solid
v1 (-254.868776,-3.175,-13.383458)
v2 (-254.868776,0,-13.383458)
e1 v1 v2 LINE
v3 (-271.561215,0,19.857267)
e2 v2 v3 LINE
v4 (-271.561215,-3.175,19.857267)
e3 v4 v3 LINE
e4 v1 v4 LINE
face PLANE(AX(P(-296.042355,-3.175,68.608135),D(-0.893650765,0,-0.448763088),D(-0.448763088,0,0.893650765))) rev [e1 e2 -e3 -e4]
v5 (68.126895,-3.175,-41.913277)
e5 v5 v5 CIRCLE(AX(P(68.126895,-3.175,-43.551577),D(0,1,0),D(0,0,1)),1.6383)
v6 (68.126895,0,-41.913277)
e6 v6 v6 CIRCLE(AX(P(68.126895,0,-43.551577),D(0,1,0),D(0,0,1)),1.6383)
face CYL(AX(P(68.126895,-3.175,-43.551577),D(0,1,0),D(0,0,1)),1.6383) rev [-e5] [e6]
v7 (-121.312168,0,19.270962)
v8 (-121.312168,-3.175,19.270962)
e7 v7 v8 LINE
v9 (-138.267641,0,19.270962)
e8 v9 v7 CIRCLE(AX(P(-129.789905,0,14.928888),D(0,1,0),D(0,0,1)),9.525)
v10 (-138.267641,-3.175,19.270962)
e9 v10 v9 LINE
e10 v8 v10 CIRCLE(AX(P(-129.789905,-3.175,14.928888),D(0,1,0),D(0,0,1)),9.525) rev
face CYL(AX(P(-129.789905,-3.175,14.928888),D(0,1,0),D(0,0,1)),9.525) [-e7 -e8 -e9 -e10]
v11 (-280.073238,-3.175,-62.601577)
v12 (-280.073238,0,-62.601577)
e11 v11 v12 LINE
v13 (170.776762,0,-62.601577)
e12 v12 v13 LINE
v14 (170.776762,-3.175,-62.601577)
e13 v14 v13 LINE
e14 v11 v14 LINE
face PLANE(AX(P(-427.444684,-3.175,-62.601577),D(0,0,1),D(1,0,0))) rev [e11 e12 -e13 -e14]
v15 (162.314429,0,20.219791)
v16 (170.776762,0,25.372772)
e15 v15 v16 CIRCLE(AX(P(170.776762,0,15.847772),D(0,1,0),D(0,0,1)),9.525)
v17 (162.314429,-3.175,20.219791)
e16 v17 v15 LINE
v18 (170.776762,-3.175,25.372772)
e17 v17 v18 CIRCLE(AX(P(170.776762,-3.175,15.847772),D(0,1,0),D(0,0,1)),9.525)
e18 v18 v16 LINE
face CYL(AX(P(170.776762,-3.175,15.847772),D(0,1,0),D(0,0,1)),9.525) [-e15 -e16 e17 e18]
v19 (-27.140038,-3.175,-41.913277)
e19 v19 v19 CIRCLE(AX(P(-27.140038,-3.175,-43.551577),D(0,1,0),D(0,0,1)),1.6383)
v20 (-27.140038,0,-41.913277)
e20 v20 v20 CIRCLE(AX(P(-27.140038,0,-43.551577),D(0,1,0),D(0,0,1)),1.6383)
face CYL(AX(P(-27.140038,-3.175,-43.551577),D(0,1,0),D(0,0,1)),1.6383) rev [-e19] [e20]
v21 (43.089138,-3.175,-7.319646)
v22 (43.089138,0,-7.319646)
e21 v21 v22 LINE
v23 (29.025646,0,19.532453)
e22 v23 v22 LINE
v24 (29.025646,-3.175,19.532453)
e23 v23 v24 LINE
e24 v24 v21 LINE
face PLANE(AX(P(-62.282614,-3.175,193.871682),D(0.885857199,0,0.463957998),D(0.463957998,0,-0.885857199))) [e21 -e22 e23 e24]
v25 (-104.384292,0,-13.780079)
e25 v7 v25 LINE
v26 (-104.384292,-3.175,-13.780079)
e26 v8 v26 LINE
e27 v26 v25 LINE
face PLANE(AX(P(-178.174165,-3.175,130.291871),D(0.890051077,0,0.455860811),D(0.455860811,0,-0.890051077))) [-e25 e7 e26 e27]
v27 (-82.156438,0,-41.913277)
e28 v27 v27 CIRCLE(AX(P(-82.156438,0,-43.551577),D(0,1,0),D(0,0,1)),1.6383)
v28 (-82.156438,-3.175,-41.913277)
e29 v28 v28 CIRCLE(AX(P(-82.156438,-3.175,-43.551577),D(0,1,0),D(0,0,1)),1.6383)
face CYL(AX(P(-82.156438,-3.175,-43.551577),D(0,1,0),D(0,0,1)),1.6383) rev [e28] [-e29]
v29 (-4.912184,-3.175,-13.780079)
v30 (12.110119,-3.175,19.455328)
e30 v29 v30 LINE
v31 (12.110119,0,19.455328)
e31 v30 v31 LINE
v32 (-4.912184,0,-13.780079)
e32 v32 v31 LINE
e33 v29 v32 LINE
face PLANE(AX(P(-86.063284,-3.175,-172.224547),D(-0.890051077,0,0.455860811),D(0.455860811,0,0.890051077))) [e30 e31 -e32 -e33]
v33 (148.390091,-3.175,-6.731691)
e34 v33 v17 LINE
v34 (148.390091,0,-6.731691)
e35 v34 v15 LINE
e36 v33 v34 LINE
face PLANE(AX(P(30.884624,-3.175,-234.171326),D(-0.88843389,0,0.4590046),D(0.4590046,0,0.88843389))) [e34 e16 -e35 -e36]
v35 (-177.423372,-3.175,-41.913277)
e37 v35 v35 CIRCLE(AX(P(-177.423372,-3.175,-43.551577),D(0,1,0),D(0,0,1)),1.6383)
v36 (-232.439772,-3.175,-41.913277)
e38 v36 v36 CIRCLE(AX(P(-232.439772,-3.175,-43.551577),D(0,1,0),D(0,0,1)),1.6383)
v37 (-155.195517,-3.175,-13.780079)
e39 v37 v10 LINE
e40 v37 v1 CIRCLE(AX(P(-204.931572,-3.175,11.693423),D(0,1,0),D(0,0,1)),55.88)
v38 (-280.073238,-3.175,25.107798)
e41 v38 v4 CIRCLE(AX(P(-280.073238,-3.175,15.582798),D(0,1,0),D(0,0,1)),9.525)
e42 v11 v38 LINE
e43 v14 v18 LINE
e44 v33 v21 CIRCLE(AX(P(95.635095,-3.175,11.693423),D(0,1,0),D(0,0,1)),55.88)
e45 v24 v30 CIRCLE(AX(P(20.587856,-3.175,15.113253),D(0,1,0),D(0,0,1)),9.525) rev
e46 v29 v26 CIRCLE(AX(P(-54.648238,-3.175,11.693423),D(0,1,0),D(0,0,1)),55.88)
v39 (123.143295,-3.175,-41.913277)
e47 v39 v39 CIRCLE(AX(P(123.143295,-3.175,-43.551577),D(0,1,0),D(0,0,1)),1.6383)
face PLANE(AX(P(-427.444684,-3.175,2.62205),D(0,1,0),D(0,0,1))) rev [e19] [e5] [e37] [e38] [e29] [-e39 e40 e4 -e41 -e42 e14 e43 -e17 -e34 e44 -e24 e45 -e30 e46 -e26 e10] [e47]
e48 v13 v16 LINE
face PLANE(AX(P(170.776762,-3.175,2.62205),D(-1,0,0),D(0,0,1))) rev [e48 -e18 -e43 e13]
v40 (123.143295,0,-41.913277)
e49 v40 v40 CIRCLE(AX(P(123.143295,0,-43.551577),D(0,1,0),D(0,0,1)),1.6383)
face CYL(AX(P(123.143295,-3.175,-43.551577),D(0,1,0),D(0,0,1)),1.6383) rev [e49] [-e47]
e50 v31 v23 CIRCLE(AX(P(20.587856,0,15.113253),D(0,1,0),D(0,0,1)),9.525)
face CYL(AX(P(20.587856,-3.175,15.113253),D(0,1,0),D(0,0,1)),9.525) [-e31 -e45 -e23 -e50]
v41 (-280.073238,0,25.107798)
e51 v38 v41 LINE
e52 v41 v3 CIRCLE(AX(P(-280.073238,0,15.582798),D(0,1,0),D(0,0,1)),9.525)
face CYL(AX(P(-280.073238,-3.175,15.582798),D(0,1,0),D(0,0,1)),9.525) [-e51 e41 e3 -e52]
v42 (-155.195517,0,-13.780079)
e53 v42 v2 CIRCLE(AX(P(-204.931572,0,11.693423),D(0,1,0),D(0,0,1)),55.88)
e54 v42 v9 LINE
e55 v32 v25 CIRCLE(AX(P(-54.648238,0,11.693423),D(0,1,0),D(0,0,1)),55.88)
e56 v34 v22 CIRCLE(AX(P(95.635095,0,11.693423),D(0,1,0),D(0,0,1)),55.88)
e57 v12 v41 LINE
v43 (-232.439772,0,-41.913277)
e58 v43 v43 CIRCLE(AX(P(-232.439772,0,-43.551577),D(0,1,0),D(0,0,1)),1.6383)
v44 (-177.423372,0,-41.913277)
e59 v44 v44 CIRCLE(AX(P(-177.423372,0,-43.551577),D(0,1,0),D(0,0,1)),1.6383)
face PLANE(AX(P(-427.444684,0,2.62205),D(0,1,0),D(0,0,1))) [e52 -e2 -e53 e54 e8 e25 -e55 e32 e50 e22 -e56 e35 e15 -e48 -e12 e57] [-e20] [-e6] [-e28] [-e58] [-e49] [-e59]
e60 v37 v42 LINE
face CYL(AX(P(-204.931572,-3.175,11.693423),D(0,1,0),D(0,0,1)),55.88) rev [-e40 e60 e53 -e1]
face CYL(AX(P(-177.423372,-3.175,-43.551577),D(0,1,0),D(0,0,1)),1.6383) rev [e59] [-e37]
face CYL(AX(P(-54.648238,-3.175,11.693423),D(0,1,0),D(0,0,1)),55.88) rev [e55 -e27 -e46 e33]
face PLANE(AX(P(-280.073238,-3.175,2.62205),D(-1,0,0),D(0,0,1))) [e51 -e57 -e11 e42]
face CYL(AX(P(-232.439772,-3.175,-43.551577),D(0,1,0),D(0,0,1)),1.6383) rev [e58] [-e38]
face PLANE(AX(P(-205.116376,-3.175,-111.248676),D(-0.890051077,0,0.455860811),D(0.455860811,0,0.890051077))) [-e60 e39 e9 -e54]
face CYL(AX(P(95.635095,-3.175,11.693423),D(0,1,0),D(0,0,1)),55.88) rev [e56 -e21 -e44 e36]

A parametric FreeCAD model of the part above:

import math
import FreeCAD as App
import Part
import Sketcher
Q = App.Units.Quantity


def edges_at(feature, points):
    """Names of the edges that pass closest to the given points."""
    edges = feature.Shape.Edges
    near = lambda p: min(range(len(edges)), key=lambda i: edges[i].distToShape(Part.Vertex(*p))[0])
    return sorted({f"Edge{near(p) + 1}" for p in points})

doc = App.newDocument("Part")
params = doc.addObject("Spreadsheet::Sheet", "Params")
for row, (alias, value) in enumerate([
    ("sketch1_radius", "2.2 in"),
    ("sketch1_diameter", "0.129 in"),
    ("sketch1_radius2", "0.375 in"),
    ("sketch1_width", "17.75 in"),
    ("sketch1_height", "3.453125 in"),
    ("pad1_length", "0.125 in"),
    ("fillet_radius", "0.375 in"),
], start=1):
    params.set(f"A{row}", alias)
    params.set(f"B{row}", "=" + value)
    params.setAlias(f"B{row}", alias)

body = doc.addObject("PartDesign::Body", "Body")

sketch1 = body.newObject("Sketcher::SketchObject", "Sketch")
sketch1.AttachmentSupport = (doc.getObject("XZ_Plane"), [""])
sketch1.MapMode = "FlatFace"
sketch1.addGeometry([
    Part.LineSegment(App.Vector(-155.195517, -13.780079, 0), App.Vector(-129.789905, 35.823423, 0)),
    Part.LineSegment(App.Vector(-129.789905, 35.823423, 0), App.Vector(-104.384292, -13.780079, 0)),
    Part.ArcOfCircle(Part.Circle(App.Vector(-54.648238, 11.693423, 0), App.Vector(0, 0, 1), 55.88), math.radians(-152.879666), math.radians(-27.120334)),
    Part.LineSegment(App.Vector(-4.912184, -13.780079, 0), App.Vector(20.493428, 35.823423, 0)),
    Part.LineSegment(App.Vector(20.493428, 35.823423, 0), App.Vector(43.089138, -7.319646, 0)),
    Part.ArcOfCircle(Part.Circle(App.Vector(95.635095, 11.693423, 0), App.Vector(0, 0, 1), 55.88), math.radians(-160.108003), math.radians(-19.252174)),
    Part.LineSegment(App.Vector(148.390091, -6.731691, 0), App.Vector(162.314429, 20.219791, 0)),
    Part.ArcOfCircle(Part.Circle(App.Vector(170.776762, 15.847772, 0), App.Vector(0, 0, 1), 9.525), math.radians(90), math.radians(152.677105)),
    Part.LineSegment(App.Vector(170.776762, 25.372772, 0), App.Vector(170.776762, -62.601577, 0)),
    Part.LineSegment(App.Vector(170.776762, -62.601577, 0), App.Vector(-280.073238, -62.601577, 0)),
    Part.LineSegment(App.Vector(-280.073238, -62.601577, 0), App.Vector(-280.073238, 25.107798, 0)),
    Part.ArcOfCircle(Part.Circle(App.Vector(-280.073238, 15.582798, 0), App.Vector(0, 0, 1), 9.525), math.radians(26.664353), math.radians(90)),
    Part.LineSegment(App.Vector(-271.561215, 19.857267, 0), App.Vector(-254.868776, -13.383458, 0)),
    Part.ArcOfCircle(Part.Circle(App.Vector(-204.931572, 11.693423, 0), App.Vector(0, 0, 1), 55.88), math.radians(-153.335647), math.radians(-27.120334)),
    Part.Circle(App.Vector(-232.439772, -43.551577, 0), App.Vector(0, 0, 1), 1.6383),
    Part.Circle(App.Vector(-177.423372, -43.551577, 0), App.Vector(0, 0, 1), 1.6383),
    Part.Circle(App.Vector(-82.156438, -43.551577, 0), App.Vector(0, 0, 1), 1.6383),
    Part.Circle(App.Vector(-27.140038, -43.551577, 0), App.Vector(0, 0, 1), 1.6383),
    Part.Circle(App.Vector(68.126895, -43.551577, 0), App.Vector(0, 0, 1), 1.6383),
    Part.Circle(App.Vector(123.143295, -43.551577, 0), App.Vector(0, 0, 1), 1.6383),
], False)
sketch1.addConstraint([
    Sketcher.Constraint("Coincident", 0, 2, 1, 1),
    Sketcher.Constraint("Tangent", 1, 2, 2, 1),
    Sketcher.Constraint("Tangent", 2, 2, 3, 1),
    Sketcher.Constraint("Coincident", 3, 2, 4, 1),
    Sketcher.Constraint("Coincident", 4, 2, 5, 1),
    Sketcher.Constraint("Coincident", 5, 2, 6, 1),
    Sketcher.Constraint("Tangent", 6, 2, 7, 2),
    Sketcher.Constraint("Coincident", 7, 1, 8, 1),
    Sketcher.Constraint("Coincident", 8, 2, 9, 1),
    Sketcher.Constraint("Coincident", 9, 2, 10, 1),
    Sketcher.Constraint("Coincident", 10, 2, 11, 2),
    Sketcher.Constraint("Tangent", 11, 1, 12, 1),
    Sketcher.Constraint("Tangent", 12, 2, 13, 1),
    Sketcher.Constraint("Tangent", 13, 2, 0, 1),
    Sketcher.Constraint("Vertical", 8),
    Sketcher.Constraint("Horizontal", 9),
    Sketcher.Constraint("Vertical", 10),
    Sketcher.Constraint("Equal", 2, 5),
    Sketcher.Constraint("Equal", 7, 11),
    Sketcher.Constraint("Equal", 5, 13),
    Sketcher.Constraint("Equal", 14, 15),
    Sketcher.Constraint("Equal", 15, 16),
    Sketcher.Constraint("Equal", 16, 17),
    Sketcher.Constraint("Equal", 17, 18),
    Sketcher.Constraint("Equal", 18, 19),
    Sketcher.Constraint("Parallel", 0, 3),
    Sketcher.Constraint("Horizontal", 2, 3, 5, 3),
    Sketcher.Constraint("Horizontal", 5, 3, 13, 3),
    Sketcher.Constraint("Horizontal", 14, 3, 15, 3),
    Sketcher.Constraint("Horizontal", 15, 3, 16, 3),
    Sketcher.Constraint("Horizontal", 16, 3, 17, 3),
    Sketcher.Constraint("Horizontal", 17, 3, 18, 3),
    Sketcher.Constraint("Horizontal", 18, 3, 19, 3),
    Sketcher.Constraint("Horizontal", 1, 2, 2, 2),
    Sketcher.Constraint("Horizontal", 0, 2, 3, 2),
    Sketcher.Constraint("Vertical", 11, 3, 9, 2),
    Sketcher.Constraint("Radius", 2, Q("2.2 in")),
    Sketcher.Constraint("Diameter", 14, Q("0.129 in")),
    Sketcher.Constraint("Radius", 7, Q("0.375 in")),
    Sketcher.Constraint("DistanceX", 9, 2, 9, 1, Q("17.75 in")),
    Sketcher.Constraint("DistanceY", 10, 1, 10, 2, Q("3.453125 in")),
    Sketcher.Constraint("DistanceX", 11, 3, 7, 3, Q("17.75 in")),
    Sketcher.Constraint("DistanceY", 13, 3, 0, 2, Q("0.95 in")),
    Sketcher.Constraint("DistanceY", 8, 2, 19, 3, Q("0.75 in")),
    Sketcher.Constraint("DistanceX", 2, 3, 7, 3, Q("8.875 in")),
    Sketcher.Constraint("DistanceX", 14, 3, 13, 3, Q("1.083 in")),
    Sketcher.Constraint("DistanceY", 14, 3, 13, 3, Q("2.175 in")),
    Sketcher.Constraint("DistanceX", 14, 3, 15, 3, Q("2.166 in")),
    Sketcher.Constraint("DistanceX", 16, 3, 2, 3, Q("1.083 in")),
    Sketcher.Constraint("DistanceX", 16, 3, 17, 3, Q("2.166 in")),
    Sketcher.Constraint("DistanceX", 18, 3, 5, 3, Q("1.083 in")),
    Sketcher.Constraint("DistanceX", 18, 3, 19, 3, Q("2.166 in")),
    Sketcher.Constraint("DistanceY", 8, 2, 8, 1, 87.974348),
    Sketcher.Constraint("DistanceY", -1, 1, 11, 3, 15.582798),
    Sketcher.Constraint("Distance", 4, 48.702059),
    Sketcher.Constraint("Distance", 12, 37.196549),
    Sketcher.Constraint("DistanceX", 2, 3, -1, 1, 54.648238),
    Sketcher.Constraint("DistanceX", -1, 1, 4, 2, 43.089138),
    Sketcher.Constraint("DistanceX", -1, 1, 5, 2, 148.390091),
])
sketch1.setExpression("Constraints[36]", "Params.sketch1_radius")
sketch1.setExpression("Constraints[37]", "Params.sketch1_diameter")
sketch1.setExpression("Constraints[38]", "Params.sketch1_radius2")
sketch1.setExpression("Constraints[39]", "Params.sketch1_width")
sketch1.setExpression("Constraints[40]", "Params.sketch1_height")
pad1 = body.newObject("PartDesign::Pad", "Pad")
pad1.Profile = sketch1
pad1.setExpression("Length", "Params.pad1_length")
doc.recompute()

fillet = body.newObject("PartDesign::Fillet", "Fillet")
fillet.Base = (pad1, edges_at(pad1, [(20.493, -1.587, 35.823), (-129.79, -1.587, 35.823)]))
fillet.setExpression("Radius", "Params.fillet_radius")

doc.recompute()
